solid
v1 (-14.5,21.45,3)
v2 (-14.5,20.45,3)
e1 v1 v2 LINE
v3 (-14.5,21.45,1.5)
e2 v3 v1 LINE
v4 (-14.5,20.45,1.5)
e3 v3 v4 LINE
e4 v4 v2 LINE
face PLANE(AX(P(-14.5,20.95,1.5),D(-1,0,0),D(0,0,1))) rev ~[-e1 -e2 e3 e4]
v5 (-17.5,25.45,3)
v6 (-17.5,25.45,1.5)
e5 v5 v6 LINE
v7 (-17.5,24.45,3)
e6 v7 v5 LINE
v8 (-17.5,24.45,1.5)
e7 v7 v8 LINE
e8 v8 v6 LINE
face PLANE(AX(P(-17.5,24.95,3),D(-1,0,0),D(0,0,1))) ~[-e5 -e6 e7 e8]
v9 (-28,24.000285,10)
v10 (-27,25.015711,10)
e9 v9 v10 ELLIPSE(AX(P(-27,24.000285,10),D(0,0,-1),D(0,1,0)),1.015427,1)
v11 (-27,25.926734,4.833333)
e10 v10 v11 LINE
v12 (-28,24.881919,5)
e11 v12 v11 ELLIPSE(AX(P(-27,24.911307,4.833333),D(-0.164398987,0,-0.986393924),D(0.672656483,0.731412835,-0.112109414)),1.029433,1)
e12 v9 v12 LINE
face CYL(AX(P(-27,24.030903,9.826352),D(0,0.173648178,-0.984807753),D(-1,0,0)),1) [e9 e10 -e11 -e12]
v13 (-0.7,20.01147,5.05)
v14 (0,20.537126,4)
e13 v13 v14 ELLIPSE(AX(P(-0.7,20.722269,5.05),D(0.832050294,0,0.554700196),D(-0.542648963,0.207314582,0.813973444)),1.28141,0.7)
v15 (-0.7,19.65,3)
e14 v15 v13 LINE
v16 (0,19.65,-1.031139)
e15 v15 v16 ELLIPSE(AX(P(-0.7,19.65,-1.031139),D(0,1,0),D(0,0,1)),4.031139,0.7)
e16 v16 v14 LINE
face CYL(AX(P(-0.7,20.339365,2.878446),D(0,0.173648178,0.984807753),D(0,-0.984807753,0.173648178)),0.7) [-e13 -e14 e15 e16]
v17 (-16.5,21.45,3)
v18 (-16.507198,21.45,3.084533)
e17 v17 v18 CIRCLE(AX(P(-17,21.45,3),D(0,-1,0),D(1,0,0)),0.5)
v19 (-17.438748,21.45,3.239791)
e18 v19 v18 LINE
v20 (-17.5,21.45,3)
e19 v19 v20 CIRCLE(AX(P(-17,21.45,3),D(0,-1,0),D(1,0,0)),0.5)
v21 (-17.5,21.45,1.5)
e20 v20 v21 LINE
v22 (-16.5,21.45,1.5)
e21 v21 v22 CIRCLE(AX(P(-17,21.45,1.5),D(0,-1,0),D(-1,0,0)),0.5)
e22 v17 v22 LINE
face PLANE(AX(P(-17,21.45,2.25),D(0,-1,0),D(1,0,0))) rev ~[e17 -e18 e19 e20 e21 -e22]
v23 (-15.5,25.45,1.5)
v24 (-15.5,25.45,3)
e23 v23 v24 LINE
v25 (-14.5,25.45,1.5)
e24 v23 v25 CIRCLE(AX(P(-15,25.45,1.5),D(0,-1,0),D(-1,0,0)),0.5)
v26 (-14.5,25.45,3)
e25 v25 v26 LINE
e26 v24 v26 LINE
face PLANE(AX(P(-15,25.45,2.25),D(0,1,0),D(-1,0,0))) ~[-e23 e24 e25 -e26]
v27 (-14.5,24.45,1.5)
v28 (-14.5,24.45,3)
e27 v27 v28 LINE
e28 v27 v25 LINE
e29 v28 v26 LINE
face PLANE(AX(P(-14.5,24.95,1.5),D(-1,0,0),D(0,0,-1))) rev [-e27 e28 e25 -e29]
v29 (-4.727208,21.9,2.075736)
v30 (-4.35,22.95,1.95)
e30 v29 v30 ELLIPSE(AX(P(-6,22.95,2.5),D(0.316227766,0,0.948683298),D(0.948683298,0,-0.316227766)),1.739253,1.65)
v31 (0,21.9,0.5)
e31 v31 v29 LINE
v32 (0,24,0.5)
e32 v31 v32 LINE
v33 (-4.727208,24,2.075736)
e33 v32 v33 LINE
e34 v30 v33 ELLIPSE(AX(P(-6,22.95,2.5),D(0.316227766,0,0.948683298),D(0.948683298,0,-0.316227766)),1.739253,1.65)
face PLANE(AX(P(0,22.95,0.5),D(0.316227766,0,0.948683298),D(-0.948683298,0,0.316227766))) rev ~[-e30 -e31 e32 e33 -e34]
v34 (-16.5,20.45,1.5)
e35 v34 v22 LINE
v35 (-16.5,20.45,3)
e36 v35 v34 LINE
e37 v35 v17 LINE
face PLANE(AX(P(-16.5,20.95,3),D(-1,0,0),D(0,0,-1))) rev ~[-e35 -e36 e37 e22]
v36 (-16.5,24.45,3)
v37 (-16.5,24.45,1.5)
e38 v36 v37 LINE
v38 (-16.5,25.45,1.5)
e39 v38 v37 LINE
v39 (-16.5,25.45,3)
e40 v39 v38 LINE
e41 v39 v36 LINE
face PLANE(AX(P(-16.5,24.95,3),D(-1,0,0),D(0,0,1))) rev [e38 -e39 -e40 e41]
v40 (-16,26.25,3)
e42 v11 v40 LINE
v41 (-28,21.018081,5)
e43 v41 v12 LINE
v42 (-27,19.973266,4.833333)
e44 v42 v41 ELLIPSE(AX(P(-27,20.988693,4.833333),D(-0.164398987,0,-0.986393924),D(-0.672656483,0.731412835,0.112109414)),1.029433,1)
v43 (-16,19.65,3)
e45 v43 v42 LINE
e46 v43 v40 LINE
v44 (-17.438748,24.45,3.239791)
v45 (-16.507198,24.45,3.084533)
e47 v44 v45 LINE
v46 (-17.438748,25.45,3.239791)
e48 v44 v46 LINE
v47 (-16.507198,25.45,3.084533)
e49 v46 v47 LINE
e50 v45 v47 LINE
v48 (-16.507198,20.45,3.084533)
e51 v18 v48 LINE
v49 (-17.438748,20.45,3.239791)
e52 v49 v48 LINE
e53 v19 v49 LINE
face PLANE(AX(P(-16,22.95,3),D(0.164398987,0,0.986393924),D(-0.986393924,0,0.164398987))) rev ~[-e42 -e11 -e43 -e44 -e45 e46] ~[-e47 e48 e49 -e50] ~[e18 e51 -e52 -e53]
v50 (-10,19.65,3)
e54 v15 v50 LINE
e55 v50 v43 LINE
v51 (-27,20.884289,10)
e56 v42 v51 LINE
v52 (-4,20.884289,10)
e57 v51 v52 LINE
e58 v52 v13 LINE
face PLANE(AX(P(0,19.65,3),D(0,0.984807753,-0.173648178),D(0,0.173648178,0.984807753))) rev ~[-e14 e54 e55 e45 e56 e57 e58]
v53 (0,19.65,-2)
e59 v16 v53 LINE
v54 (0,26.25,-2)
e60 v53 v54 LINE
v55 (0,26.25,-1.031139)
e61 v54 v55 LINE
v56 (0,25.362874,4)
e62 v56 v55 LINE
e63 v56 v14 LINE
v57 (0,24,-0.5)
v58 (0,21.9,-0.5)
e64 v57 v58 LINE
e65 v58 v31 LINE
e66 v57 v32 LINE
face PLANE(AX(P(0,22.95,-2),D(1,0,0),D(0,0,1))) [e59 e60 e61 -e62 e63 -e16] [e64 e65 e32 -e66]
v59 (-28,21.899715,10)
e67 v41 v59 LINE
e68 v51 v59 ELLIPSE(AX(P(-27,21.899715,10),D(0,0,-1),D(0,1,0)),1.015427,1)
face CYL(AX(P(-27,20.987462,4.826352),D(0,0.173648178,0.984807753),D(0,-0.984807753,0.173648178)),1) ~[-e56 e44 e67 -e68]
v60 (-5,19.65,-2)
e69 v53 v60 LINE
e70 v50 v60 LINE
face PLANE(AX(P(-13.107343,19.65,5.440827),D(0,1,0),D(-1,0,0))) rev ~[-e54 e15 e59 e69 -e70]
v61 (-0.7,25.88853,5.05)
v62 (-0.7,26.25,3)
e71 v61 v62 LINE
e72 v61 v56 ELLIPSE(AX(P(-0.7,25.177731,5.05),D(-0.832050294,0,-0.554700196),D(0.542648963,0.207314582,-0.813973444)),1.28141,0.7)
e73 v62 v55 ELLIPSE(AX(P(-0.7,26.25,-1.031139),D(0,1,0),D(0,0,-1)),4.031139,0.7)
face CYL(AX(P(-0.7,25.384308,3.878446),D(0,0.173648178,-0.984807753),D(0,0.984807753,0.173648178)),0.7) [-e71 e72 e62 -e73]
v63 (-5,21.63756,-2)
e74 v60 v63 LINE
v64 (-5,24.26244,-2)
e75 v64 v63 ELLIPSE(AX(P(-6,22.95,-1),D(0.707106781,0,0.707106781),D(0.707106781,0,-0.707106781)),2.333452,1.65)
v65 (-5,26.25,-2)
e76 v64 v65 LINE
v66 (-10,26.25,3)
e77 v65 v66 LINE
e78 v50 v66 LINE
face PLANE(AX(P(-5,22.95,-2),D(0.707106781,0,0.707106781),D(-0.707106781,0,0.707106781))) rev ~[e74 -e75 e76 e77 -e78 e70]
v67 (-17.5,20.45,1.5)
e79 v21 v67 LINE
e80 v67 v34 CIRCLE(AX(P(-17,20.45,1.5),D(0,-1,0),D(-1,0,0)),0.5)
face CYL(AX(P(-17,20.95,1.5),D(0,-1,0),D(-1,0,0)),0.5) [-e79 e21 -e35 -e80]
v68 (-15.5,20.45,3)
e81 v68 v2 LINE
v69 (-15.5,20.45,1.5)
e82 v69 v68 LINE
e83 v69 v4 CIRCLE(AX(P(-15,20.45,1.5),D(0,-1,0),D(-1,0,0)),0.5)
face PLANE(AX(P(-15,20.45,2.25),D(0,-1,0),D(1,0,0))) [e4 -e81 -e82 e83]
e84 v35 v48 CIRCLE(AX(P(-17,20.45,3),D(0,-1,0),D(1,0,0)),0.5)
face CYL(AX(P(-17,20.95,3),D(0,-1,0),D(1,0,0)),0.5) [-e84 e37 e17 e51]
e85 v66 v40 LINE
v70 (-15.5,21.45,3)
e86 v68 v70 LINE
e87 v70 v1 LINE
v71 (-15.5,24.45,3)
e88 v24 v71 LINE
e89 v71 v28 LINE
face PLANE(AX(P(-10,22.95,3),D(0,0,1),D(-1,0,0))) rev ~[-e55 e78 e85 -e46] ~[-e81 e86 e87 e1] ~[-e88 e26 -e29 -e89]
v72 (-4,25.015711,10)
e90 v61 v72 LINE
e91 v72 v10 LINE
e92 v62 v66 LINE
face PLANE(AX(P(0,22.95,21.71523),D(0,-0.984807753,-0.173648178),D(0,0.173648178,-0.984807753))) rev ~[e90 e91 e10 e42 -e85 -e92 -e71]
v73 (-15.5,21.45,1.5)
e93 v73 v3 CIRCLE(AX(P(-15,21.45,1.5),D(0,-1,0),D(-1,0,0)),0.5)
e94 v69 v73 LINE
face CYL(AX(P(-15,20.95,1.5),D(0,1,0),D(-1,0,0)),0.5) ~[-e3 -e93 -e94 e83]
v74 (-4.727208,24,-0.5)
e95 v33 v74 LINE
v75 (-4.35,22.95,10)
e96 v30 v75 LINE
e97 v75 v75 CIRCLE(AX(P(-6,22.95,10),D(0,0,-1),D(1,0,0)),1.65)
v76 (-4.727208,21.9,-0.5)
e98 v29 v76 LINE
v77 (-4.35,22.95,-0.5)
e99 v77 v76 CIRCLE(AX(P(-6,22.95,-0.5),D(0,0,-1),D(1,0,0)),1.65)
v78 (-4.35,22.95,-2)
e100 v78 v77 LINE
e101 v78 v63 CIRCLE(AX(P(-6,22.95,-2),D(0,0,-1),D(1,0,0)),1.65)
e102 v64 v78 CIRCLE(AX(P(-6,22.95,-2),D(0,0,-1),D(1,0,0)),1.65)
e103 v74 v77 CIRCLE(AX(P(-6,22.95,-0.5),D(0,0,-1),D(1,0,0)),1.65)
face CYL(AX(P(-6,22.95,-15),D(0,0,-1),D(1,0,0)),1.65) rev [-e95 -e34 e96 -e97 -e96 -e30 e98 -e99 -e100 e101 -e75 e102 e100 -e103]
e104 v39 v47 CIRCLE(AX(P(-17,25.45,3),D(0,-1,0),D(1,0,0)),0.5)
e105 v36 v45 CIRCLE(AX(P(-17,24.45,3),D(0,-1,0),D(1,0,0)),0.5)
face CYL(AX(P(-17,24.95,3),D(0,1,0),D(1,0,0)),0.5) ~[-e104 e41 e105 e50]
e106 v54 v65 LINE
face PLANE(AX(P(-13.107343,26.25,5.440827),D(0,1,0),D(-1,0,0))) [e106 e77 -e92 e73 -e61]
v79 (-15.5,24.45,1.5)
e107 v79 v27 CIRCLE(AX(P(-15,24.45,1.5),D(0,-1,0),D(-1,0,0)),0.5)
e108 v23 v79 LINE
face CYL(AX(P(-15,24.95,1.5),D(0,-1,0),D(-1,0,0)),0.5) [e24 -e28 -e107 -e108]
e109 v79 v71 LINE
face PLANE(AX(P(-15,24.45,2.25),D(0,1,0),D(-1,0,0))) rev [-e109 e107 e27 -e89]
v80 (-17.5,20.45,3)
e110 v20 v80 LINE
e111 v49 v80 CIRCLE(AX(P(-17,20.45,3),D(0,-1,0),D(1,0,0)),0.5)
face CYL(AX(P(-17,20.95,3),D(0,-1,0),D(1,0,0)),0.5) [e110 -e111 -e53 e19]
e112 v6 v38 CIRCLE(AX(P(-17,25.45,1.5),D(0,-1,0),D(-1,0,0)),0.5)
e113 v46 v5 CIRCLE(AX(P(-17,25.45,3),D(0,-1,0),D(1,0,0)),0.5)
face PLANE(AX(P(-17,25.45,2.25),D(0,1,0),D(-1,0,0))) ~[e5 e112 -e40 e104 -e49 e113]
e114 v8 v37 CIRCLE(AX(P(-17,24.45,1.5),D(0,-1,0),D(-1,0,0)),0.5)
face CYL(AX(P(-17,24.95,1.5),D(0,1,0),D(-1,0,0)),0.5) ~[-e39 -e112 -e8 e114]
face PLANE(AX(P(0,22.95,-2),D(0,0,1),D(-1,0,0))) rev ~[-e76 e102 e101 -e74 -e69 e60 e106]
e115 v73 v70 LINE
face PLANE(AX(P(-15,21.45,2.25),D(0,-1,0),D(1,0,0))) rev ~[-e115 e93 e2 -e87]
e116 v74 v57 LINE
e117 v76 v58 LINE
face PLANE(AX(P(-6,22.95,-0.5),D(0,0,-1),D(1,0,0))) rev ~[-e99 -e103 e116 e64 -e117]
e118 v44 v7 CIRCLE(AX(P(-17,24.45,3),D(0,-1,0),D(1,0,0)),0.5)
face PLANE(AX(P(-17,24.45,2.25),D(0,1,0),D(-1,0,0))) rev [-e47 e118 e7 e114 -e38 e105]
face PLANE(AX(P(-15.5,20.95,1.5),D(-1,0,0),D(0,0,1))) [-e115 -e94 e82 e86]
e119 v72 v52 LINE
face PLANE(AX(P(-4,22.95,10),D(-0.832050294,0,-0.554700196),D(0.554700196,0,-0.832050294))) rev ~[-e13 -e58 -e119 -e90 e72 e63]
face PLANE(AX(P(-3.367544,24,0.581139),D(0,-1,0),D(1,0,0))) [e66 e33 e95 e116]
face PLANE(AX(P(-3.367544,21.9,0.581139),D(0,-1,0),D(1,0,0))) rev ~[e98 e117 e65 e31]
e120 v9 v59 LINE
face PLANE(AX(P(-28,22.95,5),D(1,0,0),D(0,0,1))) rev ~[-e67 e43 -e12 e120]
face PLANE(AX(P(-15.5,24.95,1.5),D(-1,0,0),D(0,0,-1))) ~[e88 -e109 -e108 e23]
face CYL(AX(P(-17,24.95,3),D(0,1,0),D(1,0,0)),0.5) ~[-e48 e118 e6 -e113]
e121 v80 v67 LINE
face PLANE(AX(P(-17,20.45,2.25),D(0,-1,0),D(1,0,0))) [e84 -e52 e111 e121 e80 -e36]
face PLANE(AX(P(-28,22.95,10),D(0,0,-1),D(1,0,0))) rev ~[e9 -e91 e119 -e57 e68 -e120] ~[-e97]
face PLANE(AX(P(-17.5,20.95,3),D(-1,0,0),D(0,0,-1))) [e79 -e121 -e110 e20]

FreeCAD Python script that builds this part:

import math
import FreeCAD as App
import Part
import Sketcher
from FreeCAD import Vector
Q = App.Units.Quantity


def edges_at(feature, points):
    """Names of the edges that pass closest to the given points."""
    edges = feature.Shape.Edges
    near = lambda p: min(range(len(edges)), key=lambda i: edges[i].distToShape(Part.Vertex(*p))[0])
    return sorted({f"Edge{near(p) + 1}" for p in points})

doc = App.newDocument("Part")
body = doc.addObject("PartDesign::Body", "Body")

# Sketch on XY plane
sketch1 = doc.addObject("Sketcher::SketchObject", "Sketch")
body.addObject(sketch1)
sketch1.AttachmentSupport = (doc.XY_Plane, [""])
sketch1.MapMode = "FlatFace"
sketch1.AttachmentOffset = App.Placement(Vector(0, 0, -15), App.Rotation())
sketch1.addGeometry(Part.Circle(Vector(-6, 0, 0), Vector(0, 0, 1), 1.6), False)
sketch1.addConstraint([
    Sketcher.Constraint("PointOnObject", 0, 3, -1),
    Sketcher.Constraint("Diameter", 0, Q("3.3 mm")),
    Sketcher.Constraint("DistanceX", 0, 3, -1, 1, Q("6 mm")),
])
pad1 = doc.addObject("PartDesign::Pad", "Pad")
body.addObject(pad1)
pad1.Profile = sketch1
pad1.Length = 30
body2 = doc.addObject("PartDesign::Body", "Body001")

# Sketch on XZ plane
sketch2 = doc.addObject("Sketcher::SketchObject", "Sketch001")
body2.addObject(sketch2)
sketch2.AttachmentSupport = (doc.getObject("XZ_Plane001"), [""])
sketch2.MapMode = "FlatFace"
sketch2.addGeometry([
    Part.LineSegment(Vector(-6, 2.5, 0), Vector(-6, -0.5, 0)),
    Part.LineSegment(Vector(-6, -0.5, 0), Vector(0, -0.5, 0)),
    Part.LineSegment(Vector(0, -0.5, 0), Vector(0, 0.5, 0)),
    Part.LineSegment(Vector(0, 0.5, 0), Vector(-6, 2.5, 0)),
], False)
sketch2.addConstraint([
    Sketcher.Constraint("Coincident", 0, 2, 1, 1),
    Sketcher.Constraint("Coincident", 1, 2, 2, 1),
    Sketcher.Constraint("Coincident", 2, 2, 3, 1),
    Sketcher.Constraint("Coincident", 3, 2, 0, 1),
    Sketcher.Constraint("Vertical", 0),
    Sketcher.Constraint("Horizontal", 1),
    Sketcher.Constraint("Vertical", 2),
    Sketcher.Constraint("Symmetric", 1, 2, 2, 2, -1, 1),
    Sketcher.Constraint("DistanceX", 1, 1, 1, 2, Q("6 mm")),
    Sketcher.Constraint("DistanceY", 0, 2, 0, 1, Q("3 mm")),
    Sketcher.Constraint("DistanceY", 2, 1, 2, 2, Q("1 mm")),
])
pad2 = doc.addObject("PartDesign::Pad", "Pad001")
body2.addObject(pad2)
pad2.Profile = sketch2
pad2.Length = 2.1
pad2.Midplane = True
body3 = doc.addObject("PartDesign::Body", "Body002")

# Sketch on XZ plane
sketch3 = doc.addObject("Sketcher::SketchObject", "Sketch002")
body3.addObject(sketch3)
sketch3.AttachmentSupport = (doc.getObject("XZ_Plane002"), [""])
sketch3.MapMode = "FlatFace"
sketch3.addGeometry([
    Part.LineSegment(Vector(0, -2, 0), Vector(0, 4, 0)),  # 0
    Part.LineSegment(Vector(0, 4, 0), Vector(-4, 10, 0)),  # 1
    Part.LineSegment(Vector(-4, 10, 0), Vector(-28, 10, 0)),  # 2
    Part.LineSegment(Vector(-28, 10, 0), Vector(-28, 5, 0)),  # 3
    Part.LineSegment(Vector(-28, 5, 0), Vector(-16, 3, 0)),  # 4
    Part.LineSegment(Vector(-16, 3, 0), Vector(-10, 3, 0)),  # 5
    Part.LineSegment(Vector(-10, 3, 0), Vector(-5, -2, 0)),  # 6
    Part.LineSegment(Vector(-5, -2, 0), Vector(0, -2, 0)),  # 7
], False)
sketch3.addConstraint([
    Sketcher.Constraint("Coincident", 0, 2, 1, 1),
    Sketcher.Constraint("Coincident", 1, 2, 2, 1),
    Sketcher.Constraint("Coincident", 2, 2, 3, 1),
    Sketcher.Constraint("Coincident", 3, 2, 4, 1),
    Sketcher.Constraint("Coincident", 4, 2, 5, 1),
    Sketcher.Constraint("Coincident", 5, 2, 6, 1),
    Sketcher.Constraint("Coincident", 6, 2, 7, 1),
    Sketcher.Constraint("Coincident", 7, 2, 0, 1),
    Sketcher.Constraint("Vertical", 0),
    Sketcher.Constraint("Horizontal", 2),
    Sketcher.Constraint("Vertical", 3),
    Sketcher.Constraint("Horizontal", 5),
    Sketcher.Constraint("Horizontal", 7),
    Sketcher.Constraint("PointOnObject", 0, 2, -2),
    Sketcher.Constraint("Equal", 5, 0),
    Sketcher.Constraint("Equal", 7, 3),
    Sketcher.Constraint("DistanceX", 2, 2, 2, 1, Q("24 mm")),
    Sketcher.Constraint("DistanceX", 5, 1, 5, 2, Q("6 mm")),
    Sketcher.Constraint("DistanceX", 7, 1, 7, 2, Q("5 mm")),
    Sketcher.Constraint("Angle", 6, Q("-45 deg")),
    Sketcher.Constraint("DistanceY", -1, 1, 0, 2, Q("4 mm")),
    Sketcher.Constraint("DistanceX", 1, 2, -1, 1, Q("4 mm")),
    Sketcher.Constraint("DistanceY", -1, 1, 1, 2, Q("10 mm")),
    Sketcher.Constraint("DistanceX", 4, 2, -1, 1, Q("16 mm")),
])
pad3 = doc.addObject("PartDesign::Pad", "Pad002")
body3.addObject(pad3)
pad3.Profile = sketch3
pad3.Length = 6.6
pad3.Midplane = True

# Sketch on YZ plane
sketch4 = doc.addObject("Sketcher::SketchObject", "Sketch003")
body3.addObject(sketch4)
sketch4.AttachmentSupport = (doc.getObject("YZ_Plane002"), [""])
sketch4.MapMode = "FlatFace"
sketch4.addGeometry([
    Part.LineSegment(Vector(-3.3, 0, 0), Vector(-3.3, 3, 0)),  # 0
    Part.LineSegment(Vector(-3.3, 3, 0), Vector(0, 21.7, 0)),  # 1
    Part.LineSegment(Vector(0, 21.7, 0), Vector(3.3, 3, 0)),  # 2
    Part.LineSegment(Vector(3.3, 3, 0), Vector(3.3, 0, 0)),  # 3
    Part.LineSegment(Vector(3.3, 0, 0), Vector(13, 0, 0)),  # 4
    Part.LineSegment(Vector(13, 0, 0), Vector(13, 26, 0)),  # 5
    Part.LineSegment(Vector(13, 26, 0), Vector(-13, 26, 0)),  # 6
    Part.LineSegment(Vector(-13, 26, 0), Vector(-13, 0, 0)),  # 7
    Part.LineSegment(Vector(-13, 0, 0), Vector(-3.3, 0, 0)),  # 8
], False)
sketch4.addConstraint([
    Sketcher.Constraint("Coincident", 0, 2, 1, 1),
    Sketcher.Constraint("Coincident", 1, 2, 2, 1),
    Sketcher.Constraint("Coincident", 2, 2, 3, 1),
    Sketcher.Constraint("Coincident", 3, 2, 4, 1),
    Sketcher.Constraint("Coincident", 4, 2, 5, 1),
    Sketcher.Constraint("Coincident", 5, 2, 6, 1),
    Sketcher.Constraint("Coincident", 6, 2, 7, 1),
    Sketcher.Constraint("Coincident", 7, 2, 8, 1),
    Sketcher.Constraint("Coincident", 8, 2, 0, 1),
    Sketcher.Constraint("Vertical", 0),
    Sketcher.Constraint("Vertical", 3),
    Sketcher.Constraint("Horizontal", 4),
    Sketcher.Constraint("Vertical", 5),
    Sketcher.Constraint("Horizontal", 6),
    Sketcher.Constraint("Vertical", 7),
    Sketcher.Constraint("Horizontal", 8),
    Sketcher.Constraint("Symmetric", 4, 2, 7, 2, -1, 1),
    Sketcher.Constraint("Symmetric", 0, 2, 2, 2, -2),
    Sketcher.Constraint("PointOnObject", 1, 2, -2),
    Sketcher.Constraint("PointOnObject", 3, 2, -1),
    Sketcher.Constraint("Equal", 6, 5),
    Sketcher.Constraint("DistanceX", 6, 2, 6, 1, Q("26 mm")),
    Sketcher.Constraint("DistanceY", 0, 1, 0, 2, Q("3 mm")),
    Sketcher.Constraint("Angle", 1, Q("80 deg")),
    Sketcher.Constraint("DistanceX", 4, 1, 4, 2, Q("9.7 mm")),
])
pocket1 = doc.addObject("PartDesign::Pocket", "Pocket")
body3.addObject(pocket1)
pocket1.Profile = sketch4
pocket1.Type = "ThroughAll"

# Sketch on XZ plane
sketch5 = doc.addObject("Sketcher::SketchObject", "Sketch004")
body3.addObject(sketch5)
sketch5.AttachmentSupport = (doc.getObject("XZ_Plane002"), [""])
sketch5.MapMode = "FlatFace"
sketch5.AttachmentOffset = App.Placement(Vector(0, 0, 2), App.Rotation())
sketch5.addGeometry([
    Part.ArcOfCircle(Part.Circle(Vector(-15, 1.5, 0), Vector(0, 0, 1), 0.5), math.radians(180), math.radians(360)),  # 0
    Part.LineSegment(Vector(-14.5, 1.5, 0), Vector(-14.5, 3, 0)),  # 1
    Part.ArcOfCircle(Part.Circle(Vector(-15, 3, 0), Vector(0, 0, 1), 0.5), math.radians(0), math.radians(180)),  # 2
    Part.LineSegment(Vector(-15.5, 3, 0), Vector(-15.5, 1.5, 0)),  # 3
    Part.ArcOfCircle(Part.Circle(Vector(-17, 3, 0), Vector(0, 0, 1), 0.5), math.radians(0), math.radians(180)),  # 4
    Part.LineSegment(Vector(-17.5, 3, 0), Vector(-17.5, 1.5, 0)),  # 5
    Part.ArcOfCircle(Part.Circle(Vector(-17, 1.5, 0), Vector(0, 0, 1), 0.5), math.radians(180), math.radians(360)),  # 6
    Part.LineSegment(Vector(-16.5, 1.5, 0), Vector(-16.5, 3, 0)),  # 7
], False)
sketch5.addConstraint([
    Sketcher.Constraint("Tangent", 0, 2, 1, 1),
    Sketcher.Constraint("Tangent", 1, 2, 2, 1),
    Sketcher.Constraint("Tangent", 2, 2, 3, 1),
    Sketcher.Constraint("Tangent", 3, 2, 0, 1),
    Sketcher.Constraint("Tangent", 4, 2, 5, 1),
    Sketcher.Constraint("Tangent", 5, 2, 6, 1),
    Sketcher.Constraint("Tangent", 6, 2, 7, 1),
    Sketcher.Constraint("Tangent", 7, 2, 4, 1),
    Sketcher.Constraint("Vertical", 1),
    Sketcher.Constraint("Vertical", 3),
    Sketcher.Constraint("Vertical", 5),
    Sketcher.Constraint("Vertical", 7),
    Sketcher.Constraint("Equal", 2, 4),
    Sketcher.Constraint("Horizontal", 2, 3, 4, 3),
    Sketcher.Constraint("Horizontal", 0, 3, 6, 3),
    Sketcher.Constraint("Radius", 0, Q("0.5 mm")),
    Sketcher.Constraint("DistanceY", 1, 1, 1, 2, Q("1.5 mm")),
    Sketcher.Constraint("DistanceX", 0, 3, -1, 1, Q("15 mm")),
    Sketcher.Constraint("DistanceY", -1, 1, 2, 3, Q("3 mm")),
    Sketcher.Constraint("DistanceX", 4, 3, -1, 1, Q("17 mm")),
])
pad4 = doc.addObject("PartDesign::Pad", "Pad003")
body3.addObject(pad4)
pad4.Profile = sketch5
pad4.Length = 1
pad4.Midplane = True
doc.recompute()

mirrored = doc.addObject("PartDesign::Mirrored", "Mirrored")
body3.addObject(mirrored)
mirrored.Originals = [pad4]
mirrored.MirrorPlane = (doc.getObject("XZ_Plane002"), [""])
body3.Tip = mirrored
doc.recompute()

fillet = doc.addObject("PartDesign::Fillet", "Fillet")
body3.addObject(fillet)
fillet.Base = (mirrored, edges_at(mirrored, [(0, -3.212, 3.5), (0, 3.212, 3.5)]))
fillet.Radius = 0.7
doc.recompute()

fillet2 = doc.addObject("PartDesign::Fillet", "Fillet001")
body3.addObject(fillet2)
fillet2.Base = (fillet, edges_at(fillet, [(-28, -2.507, 7.5), (-28, 2.507, 7.5)]))
fillet2.Radius = 1
doc.recompute()

boolean = doc.addObject("PartDesign::Boolean", "Boolean")
body3.addObject(boolean)
boolean.Type = "Cut"
boolean.addObjects([body])
doc.recompute()

boolean2 = doc.addObject("PartDesign::Boolean", "Boolean001")
body3.addObject(boolean2)
boolean2.Type = "Cut"
boolean2.addObjects([body2])
body4 = doc.addObject("PartDesign::Body", "Body003")
doc.recompute()

body3.Placement = App.Placement(Vector(0, 22.95, 0), App.Rotation(Vector(0, 0, 1), 0))
boolean3 = doc.addObject("PartDesign::Boolean", "Boolean002")
body4.addObject(boolean3)
boolean3.Type = "Fuse"
boolean3.addObjects([body3])

doc.recompute()
